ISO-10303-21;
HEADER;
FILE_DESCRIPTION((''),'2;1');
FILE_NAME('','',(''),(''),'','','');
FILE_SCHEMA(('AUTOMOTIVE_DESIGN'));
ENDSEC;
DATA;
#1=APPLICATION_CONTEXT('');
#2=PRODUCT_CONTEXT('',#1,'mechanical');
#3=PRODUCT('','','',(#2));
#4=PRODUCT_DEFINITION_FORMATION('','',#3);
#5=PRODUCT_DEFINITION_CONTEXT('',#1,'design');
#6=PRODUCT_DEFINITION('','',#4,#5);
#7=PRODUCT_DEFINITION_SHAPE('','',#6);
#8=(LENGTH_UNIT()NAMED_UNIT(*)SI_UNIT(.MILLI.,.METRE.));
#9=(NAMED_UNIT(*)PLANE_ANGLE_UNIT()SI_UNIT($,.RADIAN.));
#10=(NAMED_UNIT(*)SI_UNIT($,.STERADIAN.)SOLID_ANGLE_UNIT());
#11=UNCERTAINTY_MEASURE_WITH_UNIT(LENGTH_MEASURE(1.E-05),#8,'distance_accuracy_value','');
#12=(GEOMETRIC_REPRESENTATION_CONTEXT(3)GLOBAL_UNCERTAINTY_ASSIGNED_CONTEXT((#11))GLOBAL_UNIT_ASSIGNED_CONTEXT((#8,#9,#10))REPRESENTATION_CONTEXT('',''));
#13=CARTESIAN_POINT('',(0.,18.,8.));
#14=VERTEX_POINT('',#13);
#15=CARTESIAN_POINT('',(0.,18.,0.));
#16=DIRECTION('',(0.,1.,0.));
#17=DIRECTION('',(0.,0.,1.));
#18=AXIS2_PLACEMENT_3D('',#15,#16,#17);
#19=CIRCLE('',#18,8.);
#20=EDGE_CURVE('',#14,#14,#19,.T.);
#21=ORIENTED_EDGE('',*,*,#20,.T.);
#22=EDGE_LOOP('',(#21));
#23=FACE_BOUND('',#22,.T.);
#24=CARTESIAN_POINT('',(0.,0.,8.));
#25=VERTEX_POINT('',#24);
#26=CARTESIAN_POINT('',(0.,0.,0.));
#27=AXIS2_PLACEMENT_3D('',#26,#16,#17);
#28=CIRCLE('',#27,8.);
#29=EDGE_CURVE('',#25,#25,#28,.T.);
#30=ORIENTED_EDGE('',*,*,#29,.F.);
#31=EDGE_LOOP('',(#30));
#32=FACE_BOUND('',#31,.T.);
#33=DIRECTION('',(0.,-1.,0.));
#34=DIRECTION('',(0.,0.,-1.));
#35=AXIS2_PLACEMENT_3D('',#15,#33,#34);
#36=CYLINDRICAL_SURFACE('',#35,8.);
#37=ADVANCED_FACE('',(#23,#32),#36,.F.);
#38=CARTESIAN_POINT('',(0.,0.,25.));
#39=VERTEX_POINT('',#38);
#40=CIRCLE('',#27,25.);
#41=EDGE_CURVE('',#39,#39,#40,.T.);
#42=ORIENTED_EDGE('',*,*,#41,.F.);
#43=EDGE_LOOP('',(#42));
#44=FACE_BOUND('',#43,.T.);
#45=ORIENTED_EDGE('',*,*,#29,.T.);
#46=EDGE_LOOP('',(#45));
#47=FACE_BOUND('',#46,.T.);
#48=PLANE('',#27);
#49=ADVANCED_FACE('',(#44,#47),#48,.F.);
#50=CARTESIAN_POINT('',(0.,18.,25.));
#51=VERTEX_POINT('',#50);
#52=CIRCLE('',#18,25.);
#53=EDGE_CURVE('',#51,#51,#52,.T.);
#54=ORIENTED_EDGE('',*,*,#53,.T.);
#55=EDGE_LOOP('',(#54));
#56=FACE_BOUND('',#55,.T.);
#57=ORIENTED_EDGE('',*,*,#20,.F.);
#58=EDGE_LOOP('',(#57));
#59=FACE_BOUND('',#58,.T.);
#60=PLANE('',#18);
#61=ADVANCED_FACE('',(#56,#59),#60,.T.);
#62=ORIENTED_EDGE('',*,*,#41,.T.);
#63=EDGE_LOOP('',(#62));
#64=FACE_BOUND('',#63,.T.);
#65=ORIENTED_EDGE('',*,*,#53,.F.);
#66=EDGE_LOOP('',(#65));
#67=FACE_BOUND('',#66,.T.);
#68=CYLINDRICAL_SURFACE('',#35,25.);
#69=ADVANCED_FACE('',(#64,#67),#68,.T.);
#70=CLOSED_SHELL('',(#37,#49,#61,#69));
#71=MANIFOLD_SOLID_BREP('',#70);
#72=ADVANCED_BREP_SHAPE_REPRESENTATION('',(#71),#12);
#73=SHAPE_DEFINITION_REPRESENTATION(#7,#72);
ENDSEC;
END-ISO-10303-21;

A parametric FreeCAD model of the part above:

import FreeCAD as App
import Part
import Sketcher
from FreeCAD import Vector
Q = App.Units.Quantity

doc = App.newDocument("Part")
body = doc.addObject("PartDesign::Body", "Body")

# Sketch on XZ plane
sketch1 = body.newObject("Sketcher::SketchObject", "Sketch")
sketch1.AttachmentSupport = (doc.getObject("XZ_Plane"), [""])
sketch1.MapMode = "FlatFace"
sketch1.addGeometry([
    Part.Circle(Vector(0, 0, 0), Vector(0, 0, 1), 25),
    Part.Circle(Vector(0, 0, 0), Vector(0, 0, 1), 8),
], False)
sketch1.addConstraint([
    Sketcher.Constraint("Coincident", 0, 3, -1, 1),
    Sketcher.Constraint("Coincident", 1, 3, -1, 1),
    Sketcher.Constraint("Diameter", 0, Q("50 mm")),
    Sketcher.Constraint("Diameter", 1, Q("16 mm")),
])
pad1 = body.newObject("PartDesign::Pad", "Pad")
pad1.Profile = sketch1
pad1.Length = 18
pad1.Reversed = True

doc.recompute()
